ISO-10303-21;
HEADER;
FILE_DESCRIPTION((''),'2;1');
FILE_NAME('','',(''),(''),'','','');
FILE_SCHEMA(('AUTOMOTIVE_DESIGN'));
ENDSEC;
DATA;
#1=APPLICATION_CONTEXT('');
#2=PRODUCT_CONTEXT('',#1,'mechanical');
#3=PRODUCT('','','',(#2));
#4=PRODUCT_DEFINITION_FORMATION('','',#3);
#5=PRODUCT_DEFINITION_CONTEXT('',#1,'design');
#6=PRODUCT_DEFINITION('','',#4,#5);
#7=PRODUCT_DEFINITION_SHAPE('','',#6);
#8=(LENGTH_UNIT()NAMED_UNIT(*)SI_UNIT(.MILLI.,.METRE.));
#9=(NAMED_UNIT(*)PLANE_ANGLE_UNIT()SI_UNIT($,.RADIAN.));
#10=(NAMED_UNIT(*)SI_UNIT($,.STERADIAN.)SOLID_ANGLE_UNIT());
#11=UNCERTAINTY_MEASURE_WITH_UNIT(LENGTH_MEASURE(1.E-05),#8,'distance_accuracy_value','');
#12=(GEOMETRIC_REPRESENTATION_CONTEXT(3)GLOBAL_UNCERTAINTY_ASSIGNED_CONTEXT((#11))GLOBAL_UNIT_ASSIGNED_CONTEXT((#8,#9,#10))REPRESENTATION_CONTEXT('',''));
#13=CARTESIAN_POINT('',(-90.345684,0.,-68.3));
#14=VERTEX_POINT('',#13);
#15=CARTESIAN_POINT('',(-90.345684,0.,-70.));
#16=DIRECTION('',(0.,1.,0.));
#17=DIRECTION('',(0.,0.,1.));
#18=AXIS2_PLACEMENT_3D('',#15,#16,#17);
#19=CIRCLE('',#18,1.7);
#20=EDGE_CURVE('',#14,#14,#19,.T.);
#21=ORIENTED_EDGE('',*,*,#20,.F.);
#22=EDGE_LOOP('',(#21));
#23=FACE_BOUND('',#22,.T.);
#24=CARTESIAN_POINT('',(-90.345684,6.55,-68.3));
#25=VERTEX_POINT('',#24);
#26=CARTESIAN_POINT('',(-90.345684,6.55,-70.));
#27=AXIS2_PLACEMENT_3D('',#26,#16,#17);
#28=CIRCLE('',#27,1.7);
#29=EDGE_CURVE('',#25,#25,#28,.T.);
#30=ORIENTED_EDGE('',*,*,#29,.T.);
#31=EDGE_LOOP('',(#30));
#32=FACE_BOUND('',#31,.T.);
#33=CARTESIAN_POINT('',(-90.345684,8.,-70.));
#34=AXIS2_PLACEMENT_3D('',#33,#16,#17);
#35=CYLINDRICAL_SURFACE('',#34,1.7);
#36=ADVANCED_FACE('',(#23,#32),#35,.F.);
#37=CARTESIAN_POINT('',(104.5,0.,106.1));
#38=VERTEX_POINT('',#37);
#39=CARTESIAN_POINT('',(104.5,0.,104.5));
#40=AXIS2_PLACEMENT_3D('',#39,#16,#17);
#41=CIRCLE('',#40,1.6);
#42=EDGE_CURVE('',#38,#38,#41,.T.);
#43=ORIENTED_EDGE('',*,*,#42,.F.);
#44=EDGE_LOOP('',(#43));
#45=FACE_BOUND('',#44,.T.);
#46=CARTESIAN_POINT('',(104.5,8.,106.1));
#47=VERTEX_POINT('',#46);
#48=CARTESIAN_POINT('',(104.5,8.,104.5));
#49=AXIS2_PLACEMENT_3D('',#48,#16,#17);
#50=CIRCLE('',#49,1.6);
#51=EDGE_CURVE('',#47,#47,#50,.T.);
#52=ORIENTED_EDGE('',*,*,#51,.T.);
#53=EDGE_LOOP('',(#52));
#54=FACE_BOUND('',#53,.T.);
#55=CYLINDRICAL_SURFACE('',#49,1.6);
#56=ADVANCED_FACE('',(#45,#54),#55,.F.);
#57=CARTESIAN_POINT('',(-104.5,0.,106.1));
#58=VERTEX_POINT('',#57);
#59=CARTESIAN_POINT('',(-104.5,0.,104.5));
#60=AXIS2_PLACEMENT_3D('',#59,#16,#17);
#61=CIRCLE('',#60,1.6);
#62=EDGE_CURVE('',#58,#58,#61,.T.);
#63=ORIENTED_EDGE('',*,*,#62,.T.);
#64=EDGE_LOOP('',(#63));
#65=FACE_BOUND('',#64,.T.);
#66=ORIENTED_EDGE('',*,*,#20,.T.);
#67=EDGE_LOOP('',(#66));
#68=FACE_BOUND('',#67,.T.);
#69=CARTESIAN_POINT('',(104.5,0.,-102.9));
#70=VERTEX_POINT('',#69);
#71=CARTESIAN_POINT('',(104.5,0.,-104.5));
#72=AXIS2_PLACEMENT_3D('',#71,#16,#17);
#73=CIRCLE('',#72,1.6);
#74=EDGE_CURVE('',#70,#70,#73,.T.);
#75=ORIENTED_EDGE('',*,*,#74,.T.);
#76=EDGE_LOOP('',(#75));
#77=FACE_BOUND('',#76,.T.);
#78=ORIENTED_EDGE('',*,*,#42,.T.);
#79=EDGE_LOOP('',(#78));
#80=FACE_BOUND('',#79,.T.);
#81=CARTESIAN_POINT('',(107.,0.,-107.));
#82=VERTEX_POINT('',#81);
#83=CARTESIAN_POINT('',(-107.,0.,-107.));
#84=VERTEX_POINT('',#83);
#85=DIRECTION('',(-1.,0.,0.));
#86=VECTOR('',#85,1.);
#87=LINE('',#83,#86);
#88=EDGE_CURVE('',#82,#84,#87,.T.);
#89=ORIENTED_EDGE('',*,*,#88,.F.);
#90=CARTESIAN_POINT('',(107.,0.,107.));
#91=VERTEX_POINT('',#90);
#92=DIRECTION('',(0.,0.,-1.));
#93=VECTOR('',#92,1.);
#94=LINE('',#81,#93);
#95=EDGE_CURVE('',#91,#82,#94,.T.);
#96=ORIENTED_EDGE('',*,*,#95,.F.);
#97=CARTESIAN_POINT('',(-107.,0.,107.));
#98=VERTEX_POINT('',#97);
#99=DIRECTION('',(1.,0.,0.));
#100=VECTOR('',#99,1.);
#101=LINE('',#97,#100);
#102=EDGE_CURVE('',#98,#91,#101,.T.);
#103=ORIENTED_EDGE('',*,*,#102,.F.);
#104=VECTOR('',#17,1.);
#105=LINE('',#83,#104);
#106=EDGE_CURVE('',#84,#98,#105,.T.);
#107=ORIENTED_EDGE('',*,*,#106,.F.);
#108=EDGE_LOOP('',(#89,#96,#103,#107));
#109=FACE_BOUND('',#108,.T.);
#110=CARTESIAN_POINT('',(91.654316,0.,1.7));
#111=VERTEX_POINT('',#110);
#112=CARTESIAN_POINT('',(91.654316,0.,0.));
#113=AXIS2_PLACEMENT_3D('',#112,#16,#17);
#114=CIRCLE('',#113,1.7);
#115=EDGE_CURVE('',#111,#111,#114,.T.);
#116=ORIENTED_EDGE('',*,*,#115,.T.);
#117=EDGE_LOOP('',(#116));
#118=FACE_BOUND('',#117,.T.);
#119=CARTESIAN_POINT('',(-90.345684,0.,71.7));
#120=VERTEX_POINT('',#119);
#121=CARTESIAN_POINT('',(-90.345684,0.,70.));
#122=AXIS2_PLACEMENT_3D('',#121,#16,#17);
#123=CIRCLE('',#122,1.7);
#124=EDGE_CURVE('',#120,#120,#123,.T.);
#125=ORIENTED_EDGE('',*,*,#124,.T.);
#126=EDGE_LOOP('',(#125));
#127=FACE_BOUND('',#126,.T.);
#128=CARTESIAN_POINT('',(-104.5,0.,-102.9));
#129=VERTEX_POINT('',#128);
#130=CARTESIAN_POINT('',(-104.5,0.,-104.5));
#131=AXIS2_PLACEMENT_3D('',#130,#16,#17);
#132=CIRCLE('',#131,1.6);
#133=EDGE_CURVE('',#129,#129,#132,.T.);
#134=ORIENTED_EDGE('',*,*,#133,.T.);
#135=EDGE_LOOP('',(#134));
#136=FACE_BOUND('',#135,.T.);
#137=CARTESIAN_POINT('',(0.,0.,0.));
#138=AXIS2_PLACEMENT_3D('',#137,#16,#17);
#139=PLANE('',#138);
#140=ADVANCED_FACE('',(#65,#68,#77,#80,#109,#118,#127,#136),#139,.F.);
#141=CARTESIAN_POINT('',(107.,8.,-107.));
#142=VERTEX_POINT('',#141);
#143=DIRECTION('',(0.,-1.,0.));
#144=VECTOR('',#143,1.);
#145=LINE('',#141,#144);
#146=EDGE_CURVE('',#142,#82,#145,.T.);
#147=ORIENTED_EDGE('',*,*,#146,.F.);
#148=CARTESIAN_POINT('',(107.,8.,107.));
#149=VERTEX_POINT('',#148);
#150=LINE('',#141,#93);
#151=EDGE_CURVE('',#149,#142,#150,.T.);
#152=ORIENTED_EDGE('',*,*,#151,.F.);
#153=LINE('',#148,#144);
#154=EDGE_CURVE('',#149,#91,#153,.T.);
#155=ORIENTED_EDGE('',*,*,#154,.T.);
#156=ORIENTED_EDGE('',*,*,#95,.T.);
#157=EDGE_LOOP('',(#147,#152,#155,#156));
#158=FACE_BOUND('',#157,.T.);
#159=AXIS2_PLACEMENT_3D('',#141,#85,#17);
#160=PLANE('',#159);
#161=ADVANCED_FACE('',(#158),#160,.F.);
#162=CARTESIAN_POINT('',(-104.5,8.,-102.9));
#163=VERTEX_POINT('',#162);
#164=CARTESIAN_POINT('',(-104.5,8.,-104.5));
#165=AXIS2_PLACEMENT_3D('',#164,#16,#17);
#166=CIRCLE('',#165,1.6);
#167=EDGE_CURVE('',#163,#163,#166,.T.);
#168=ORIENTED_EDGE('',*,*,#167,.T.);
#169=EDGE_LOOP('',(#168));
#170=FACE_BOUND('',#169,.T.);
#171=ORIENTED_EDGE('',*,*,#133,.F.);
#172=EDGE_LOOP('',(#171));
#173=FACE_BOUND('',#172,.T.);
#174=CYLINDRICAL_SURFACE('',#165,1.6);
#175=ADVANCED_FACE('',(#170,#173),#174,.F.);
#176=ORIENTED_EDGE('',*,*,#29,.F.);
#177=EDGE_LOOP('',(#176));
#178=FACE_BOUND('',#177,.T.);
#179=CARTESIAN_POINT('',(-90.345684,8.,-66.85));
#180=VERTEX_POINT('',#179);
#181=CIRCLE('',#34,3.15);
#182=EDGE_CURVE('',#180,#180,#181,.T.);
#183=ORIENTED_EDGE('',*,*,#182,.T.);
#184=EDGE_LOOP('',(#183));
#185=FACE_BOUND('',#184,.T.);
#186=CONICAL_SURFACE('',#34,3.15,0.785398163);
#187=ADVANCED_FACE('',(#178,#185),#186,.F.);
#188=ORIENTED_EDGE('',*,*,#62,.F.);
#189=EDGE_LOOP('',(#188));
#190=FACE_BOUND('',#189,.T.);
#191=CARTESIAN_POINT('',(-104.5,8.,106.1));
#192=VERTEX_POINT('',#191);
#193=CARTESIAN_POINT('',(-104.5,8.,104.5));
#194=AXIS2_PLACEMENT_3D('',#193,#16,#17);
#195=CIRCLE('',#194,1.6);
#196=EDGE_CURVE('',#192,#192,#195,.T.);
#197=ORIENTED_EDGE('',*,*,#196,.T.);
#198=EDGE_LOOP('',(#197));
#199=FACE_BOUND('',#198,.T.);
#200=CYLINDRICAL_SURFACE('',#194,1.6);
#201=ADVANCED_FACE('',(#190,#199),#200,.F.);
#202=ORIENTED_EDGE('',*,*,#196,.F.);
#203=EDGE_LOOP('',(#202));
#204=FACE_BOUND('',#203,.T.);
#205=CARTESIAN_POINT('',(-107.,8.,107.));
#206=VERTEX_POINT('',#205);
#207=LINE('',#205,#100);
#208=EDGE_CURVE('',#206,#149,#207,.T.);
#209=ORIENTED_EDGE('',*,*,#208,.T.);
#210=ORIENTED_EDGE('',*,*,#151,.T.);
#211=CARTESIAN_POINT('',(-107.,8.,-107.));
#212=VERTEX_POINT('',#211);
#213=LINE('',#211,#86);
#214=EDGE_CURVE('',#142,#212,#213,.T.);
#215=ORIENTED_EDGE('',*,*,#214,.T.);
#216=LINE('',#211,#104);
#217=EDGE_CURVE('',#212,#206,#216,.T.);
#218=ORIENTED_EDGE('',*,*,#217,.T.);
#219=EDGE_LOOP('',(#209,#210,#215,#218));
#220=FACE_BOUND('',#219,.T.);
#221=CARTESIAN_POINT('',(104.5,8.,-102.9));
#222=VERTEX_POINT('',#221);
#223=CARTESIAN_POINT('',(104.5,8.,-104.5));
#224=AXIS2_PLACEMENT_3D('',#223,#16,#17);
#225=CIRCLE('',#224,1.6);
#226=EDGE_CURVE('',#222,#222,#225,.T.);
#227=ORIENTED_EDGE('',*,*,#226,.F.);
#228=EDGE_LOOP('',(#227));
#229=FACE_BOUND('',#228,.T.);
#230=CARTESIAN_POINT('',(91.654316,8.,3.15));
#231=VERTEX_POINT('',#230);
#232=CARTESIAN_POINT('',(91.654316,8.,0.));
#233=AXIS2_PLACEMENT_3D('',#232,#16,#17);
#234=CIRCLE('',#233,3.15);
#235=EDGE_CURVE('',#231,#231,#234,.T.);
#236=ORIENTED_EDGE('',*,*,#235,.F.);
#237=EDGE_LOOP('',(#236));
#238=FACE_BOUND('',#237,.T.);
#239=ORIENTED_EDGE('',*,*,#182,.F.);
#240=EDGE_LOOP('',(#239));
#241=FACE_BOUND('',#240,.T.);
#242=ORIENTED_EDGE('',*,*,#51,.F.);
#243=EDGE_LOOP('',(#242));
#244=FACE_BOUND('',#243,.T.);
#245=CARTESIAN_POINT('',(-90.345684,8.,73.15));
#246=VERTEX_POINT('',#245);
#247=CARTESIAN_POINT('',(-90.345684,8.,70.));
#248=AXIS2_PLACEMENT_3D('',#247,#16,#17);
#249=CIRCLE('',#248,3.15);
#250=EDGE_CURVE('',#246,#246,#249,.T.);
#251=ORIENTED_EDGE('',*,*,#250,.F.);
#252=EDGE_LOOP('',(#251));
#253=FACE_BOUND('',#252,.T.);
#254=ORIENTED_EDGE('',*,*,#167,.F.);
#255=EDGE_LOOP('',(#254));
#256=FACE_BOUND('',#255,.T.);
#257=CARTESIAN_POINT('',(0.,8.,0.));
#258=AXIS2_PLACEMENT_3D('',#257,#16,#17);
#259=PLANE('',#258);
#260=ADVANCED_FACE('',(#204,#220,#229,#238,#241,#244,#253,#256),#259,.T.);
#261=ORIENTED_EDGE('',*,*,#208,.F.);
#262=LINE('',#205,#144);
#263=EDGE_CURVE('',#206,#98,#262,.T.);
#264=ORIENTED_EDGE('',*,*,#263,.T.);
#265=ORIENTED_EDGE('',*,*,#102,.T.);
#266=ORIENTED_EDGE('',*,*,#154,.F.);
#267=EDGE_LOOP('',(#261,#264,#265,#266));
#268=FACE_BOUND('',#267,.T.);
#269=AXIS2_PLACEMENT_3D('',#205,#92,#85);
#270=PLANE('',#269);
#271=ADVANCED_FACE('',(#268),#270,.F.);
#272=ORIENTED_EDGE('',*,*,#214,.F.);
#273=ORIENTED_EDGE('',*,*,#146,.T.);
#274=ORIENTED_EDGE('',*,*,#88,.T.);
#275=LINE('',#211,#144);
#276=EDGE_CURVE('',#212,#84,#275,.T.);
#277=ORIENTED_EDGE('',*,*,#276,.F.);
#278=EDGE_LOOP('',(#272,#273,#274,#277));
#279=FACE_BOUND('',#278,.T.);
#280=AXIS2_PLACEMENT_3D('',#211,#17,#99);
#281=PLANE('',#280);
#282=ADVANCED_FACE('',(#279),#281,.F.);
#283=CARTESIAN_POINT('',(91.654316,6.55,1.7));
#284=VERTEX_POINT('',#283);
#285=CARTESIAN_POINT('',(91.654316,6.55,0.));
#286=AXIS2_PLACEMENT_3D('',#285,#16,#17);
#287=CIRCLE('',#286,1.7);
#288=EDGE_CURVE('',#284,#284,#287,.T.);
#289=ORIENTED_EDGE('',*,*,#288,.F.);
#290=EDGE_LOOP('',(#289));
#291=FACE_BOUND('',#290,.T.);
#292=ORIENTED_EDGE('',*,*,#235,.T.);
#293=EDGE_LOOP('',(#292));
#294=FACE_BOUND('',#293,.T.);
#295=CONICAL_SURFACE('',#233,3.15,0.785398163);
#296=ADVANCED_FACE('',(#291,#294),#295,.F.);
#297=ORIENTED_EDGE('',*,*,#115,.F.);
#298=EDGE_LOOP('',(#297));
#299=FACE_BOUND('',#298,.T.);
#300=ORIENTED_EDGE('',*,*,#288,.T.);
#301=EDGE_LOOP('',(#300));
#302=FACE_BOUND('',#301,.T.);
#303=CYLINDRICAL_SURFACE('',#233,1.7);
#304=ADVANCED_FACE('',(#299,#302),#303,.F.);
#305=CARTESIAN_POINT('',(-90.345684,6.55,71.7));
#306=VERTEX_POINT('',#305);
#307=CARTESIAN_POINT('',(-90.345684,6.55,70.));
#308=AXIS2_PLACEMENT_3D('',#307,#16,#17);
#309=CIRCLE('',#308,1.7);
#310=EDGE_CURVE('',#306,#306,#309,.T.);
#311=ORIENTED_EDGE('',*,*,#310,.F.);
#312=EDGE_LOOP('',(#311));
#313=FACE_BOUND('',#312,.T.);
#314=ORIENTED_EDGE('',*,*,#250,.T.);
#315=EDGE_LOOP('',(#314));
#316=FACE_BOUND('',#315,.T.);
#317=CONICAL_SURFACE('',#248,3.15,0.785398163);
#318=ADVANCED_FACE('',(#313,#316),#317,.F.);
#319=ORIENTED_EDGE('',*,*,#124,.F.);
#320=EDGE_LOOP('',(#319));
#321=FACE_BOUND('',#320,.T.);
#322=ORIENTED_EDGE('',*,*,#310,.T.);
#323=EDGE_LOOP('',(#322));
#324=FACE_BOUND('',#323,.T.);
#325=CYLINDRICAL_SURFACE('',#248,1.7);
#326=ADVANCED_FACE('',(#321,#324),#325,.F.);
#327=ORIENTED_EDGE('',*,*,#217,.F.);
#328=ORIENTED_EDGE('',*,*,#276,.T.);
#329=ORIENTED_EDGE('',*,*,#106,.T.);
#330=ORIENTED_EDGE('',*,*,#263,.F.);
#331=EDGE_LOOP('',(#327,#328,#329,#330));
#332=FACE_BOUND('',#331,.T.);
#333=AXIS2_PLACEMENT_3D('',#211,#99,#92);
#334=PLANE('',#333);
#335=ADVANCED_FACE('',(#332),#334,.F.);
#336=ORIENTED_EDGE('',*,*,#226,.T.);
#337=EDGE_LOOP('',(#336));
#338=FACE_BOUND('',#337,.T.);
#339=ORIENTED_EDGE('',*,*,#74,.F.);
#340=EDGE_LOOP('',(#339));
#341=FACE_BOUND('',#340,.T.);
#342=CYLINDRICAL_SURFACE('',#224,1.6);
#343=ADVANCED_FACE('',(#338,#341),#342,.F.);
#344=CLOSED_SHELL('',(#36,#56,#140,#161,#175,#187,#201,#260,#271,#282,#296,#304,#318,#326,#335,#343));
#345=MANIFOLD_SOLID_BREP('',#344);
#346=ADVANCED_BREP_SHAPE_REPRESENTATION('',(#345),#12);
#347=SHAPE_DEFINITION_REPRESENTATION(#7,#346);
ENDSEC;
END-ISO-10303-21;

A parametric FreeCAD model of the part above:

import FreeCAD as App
import Part
import Sketcher
from FreeCAD import Vector

doc = App.newDocument("Part")
body = doc.addObject("PartDesign::Body", "Body")

# Sketch on XZ plane
sketch1 = doc.addObject("Sketcher::SketchObject", "Sketch")
body.addObject(sketch1)
sketch1.AttachmentSupport = (doc.XZ_Plane, [""])
sketch1.MapMode = "FlatFace"
sketch1.addGeometry([
    Part.LineSegment(Vector(-107, -107, 0), Vector(-107, 107, 0)),
    Part.LineSegment(Vector(-107, 107, 0), Vector(107, 107, 0)),
    Part.LineSegment(Vector(107, 107, 0), Vector(107, -107, 0)),
    Part.LineSegment(Vector(107, -107, 0), Vector(-107, -107, 0)),
], False)
sketch1.addConstraint([
    Sketcher.Constraint("Coincident", 0, 2, 1, 1),
    Sketcher.Constraint("Coincident", 1, 2, 2, 1),
    Sketcher.Constraint("Coincident", 2, 2, 3, 1),
    Sketcher.Constraint("Coincident", 3, 2, 0, 1),
    Sketcher.Constraint("Vertical", 0),
    Sketcher.Constraint("Horizontal", 1),
    Sketcher.Constraint("Vertical", 2),
    Sketcher.Constraint("Horizontal", 3),
    Sketcher.Constraint("Symmetric", 0, 2, 2, 2, -1, 1),
    Sketcher.Constraint("Equal", 3, 0),
    Sketcher.Constraint("DistanceX", 1, 1, 1, 2, 214.0),
])
pad1 = doc.addObject("PartDesign::Pad", "Pad")
body.addObject(pad1)
pad1.Profile = sketch1
pad1.Length = 8
pad1.Reversed = True

# Sketch on XZ plane
sketch2 = doc.addObject("Sketcher::SketchObject", "Sketch001")
body.addObject(sketch2)
sketch2.AttachmentSupport = (doc.XZ_Plane, [""])
sketch2.MapMode = "FlatFace"
sketch2.AttachmentOffset = App.Placement(Vector(0, 0, -8), App.Rotation())
sketch2.addGeometry([
    Part.Circle(Vector(-104.5, 104.5, 0), Vector(0, 0, 1), 1.6),
    Part.Circle(Vector(-104.5, -104.5, 0), Vector(0, 0, 1), 1.6),
    Part.Circle(Vector(104.5, -104.5, 0), Vector(0, 0, 1), 1.6),
    Part.Circle(Vector(104.5, 104.5, 0), Vector(0, 0, 1), 1.6),
], False)
sketch2.addConstraint([
    Sketcher.Constraint("Equal", 0, 1),
    Sketcher.Constraint("Equal", 1, 2),
    Sketcher.Constraint("Equal", 2, 3),
    Sketcher.Constraint("Symmetric", 0, 3, 2, 3, -1, 1),
    Sketcher.Constraint("Symmetric", 1, 3, 3, 3, -1, 1),
    Sketcher.Constraint("Symmetric", 1, 3, 2, 3, -2),
    Sketcher.Constraint("Diameter", 0, 3.2),
    Sketcher.Constraint("DistanceY", 1, 3, 0, 3, 209.0),
    Sketcher.Constraint("DistanceX", 1, 3, 2, 3, 209.0),
])
doc.recompute()
hole = doc.addObject("PartDesign::Hole", "Hole")
body.addObject(hole)
hole.Profile = sketch2
hole.ThreadType = "None"
hole.Diameter = 3.2
hole.DepthType = "ThroughAll"
hole.Reversed = True

# Sketch on XZ plane
sketch3 = doc.addObject("Sketcher::SketchObject", "Sketch002")
body.addObject(sketch3)
sketch3.AttachmentSupport = (doc.XZ_Plane, [""])
sketch3.MapMode = "FlatFace"
sketch3.AttachmentOffset = App.Placement(Vector(0, 0, -8), App.Rotation())
sketch3.addGeometry([
    Part.Circle(Vector(-90.3, -70, 0), Vector(0, 0, 1), 1.7),
    Part.Circle(Vector(-90.3, 70, 0), Vector(0, 0, 1), 1.7),
    Part.Circle(Vector(91.7, 0, 0), Vector(0, 0, 1), 1.7),
], False)
sketch3.addConstraint([
    Sketcher.Constraint("Equal", 0, 1),
    Sketcher.Constraint("Equal", 1, 2),
    Sketcher.Constraint("Symmetric", 0, 3, 1, 3, -1),
    Sketcher.Constraint("PointOnObject", 2, 3, -1),
    Sketcher.Constraint("Diameter", 0, 3.4),
    Sketcher.Constraint("DistanceY", 0, 3, -1, 1, 70.0),
    Sketcher.Constraint("DistanceX", 0, 3, 2, 3, 182.0),
    Sketcher.Constraint("DistanceX", 0, 3, -1, 1, 90.345684),
])
doc.recompute()
hole2 = doc.addObject("PartDesign::Hole", "Hole001")
body.addObject(hole2)
hole2.Profile = sketch3
hole2.ThreadType = "None"
hole2.Diameter = 3.4
hole2.DepthType = "ThroughAll"
hole2.HoleCutType = "Countersink"
hole2.HoleCutDiameter = 6.3
hole2.HoleCutCountersinkAngle = 90
hole2.Reversed = True

doc.recompute()
